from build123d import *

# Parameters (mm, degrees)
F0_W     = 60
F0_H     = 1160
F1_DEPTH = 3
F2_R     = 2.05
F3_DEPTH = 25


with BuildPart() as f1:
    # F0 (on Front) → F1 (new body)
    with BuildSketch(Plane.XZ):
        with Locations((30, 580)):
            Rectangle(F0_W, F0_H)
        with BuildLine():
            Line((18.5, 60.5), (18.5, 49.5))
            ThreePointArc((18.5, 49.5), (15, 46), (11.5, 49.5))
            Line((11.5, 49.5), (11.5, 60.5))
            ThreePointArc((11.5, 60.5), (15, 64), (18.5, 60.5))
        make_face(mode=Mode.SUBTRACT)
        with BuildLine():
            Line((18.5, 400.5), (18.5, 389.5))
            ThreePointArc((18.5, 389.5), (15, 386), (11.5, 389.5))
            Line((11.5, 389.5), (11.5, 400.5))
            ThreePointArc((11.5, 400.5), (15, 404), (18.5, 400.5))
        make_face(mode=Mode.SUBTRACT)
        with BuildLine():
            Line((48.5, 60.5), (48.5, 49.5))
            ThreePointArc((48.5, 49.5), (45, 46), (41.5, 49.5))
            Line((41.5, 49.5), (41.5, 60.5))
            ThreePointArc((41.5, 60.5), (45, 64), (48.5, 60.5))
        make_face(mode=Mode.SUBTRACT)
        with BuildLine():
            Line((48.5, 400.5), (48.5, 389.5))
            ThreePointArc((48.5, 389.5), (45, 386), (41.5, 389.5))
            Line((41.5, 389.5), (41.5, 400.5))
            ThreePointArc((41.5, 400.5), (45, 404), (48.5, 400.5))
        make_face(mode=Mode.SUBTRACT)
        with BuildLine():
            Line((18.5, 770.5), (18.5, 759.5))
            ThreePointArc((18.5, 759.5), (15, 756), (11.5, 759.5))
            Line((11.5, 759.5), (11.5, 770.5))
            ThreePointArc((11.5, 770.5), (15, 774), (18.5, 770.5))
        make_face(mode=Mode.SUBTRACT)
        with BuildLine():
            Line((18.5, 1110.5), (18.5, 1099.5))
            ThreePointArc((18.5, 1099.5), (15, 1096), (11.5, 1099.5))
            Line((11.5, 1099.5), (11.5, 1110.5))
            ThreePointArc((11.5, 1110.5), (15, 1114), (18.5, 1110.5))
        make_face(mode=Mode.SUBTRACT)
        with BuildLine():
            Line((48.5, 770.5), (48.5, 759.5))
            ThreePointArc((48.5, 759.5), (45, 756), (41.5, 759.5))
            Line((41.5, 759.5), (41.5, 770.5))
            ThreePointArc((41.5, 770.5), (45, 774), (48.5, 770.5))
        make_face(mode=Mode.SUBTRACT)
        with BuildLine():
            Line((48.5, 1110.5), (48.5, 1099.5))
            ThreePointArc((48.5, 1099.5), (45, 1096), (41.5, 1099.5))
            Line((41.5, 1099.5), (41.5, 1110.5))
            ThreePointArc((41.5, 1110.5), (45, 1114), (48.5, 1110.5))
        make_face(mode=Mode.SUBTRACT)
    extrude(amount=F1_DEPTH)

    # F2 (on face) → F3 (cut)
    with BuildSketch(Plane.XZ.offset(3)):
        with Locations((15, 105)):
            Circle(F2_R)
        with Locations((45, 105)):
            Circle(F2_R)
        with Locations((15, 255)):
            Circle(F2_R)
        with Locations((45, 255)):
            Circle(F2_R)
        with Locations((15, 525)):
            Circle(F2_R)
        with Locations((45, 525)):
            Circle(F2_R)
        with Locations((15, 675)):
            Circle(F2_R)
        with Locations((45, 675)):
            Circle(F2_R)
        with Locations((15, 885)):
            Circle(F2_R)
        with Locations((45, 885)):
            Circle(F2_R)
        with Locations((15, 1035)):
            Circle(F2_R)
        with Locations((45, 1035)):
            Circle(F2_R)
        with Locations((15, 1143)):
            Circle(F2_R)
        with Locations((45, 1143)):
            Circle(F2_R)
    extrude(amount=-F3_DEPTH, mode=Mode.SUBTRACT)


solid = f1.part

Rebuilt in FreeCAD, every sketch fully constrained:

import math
import FreeCAD as App
import Part
import Sketcher

doc = App.newDocument("Part")
params = doc.addObject("Spreadsheet::Sheet", "Params")
for row, (alias, value) in enumerate([
    ("sketch1_radius", "3.5 mm"),
    ("sketch1_width", "60 mm"),
    ("sketch1_height", "1160 mm"),
    ("sketch1_height2", "11 mm"),
    ("pad1_length", "3 mm"),
    ("sketch2_diameter", "4.1 mm"),
    ("pocket1_length", "25 mm"),
], start=1):
    params.set(f"A{row}", alias)
    params.set(f"B{row}", "=" + value)
    params.setAlias(f"B{row}", alias)

body = doc.addObject("PartDesign::Body", "Body")

# Sketch on XZ plane
sketch1 = body.newObject("Sketcher::SketchObject", "Sketch")
sketch1.AttachmentSupport = (doc.getObject("XZ_Plane"), [""])
sketch1.MapMode = "FlatFace"
sketch1.addGeometry([
    Part.LineSegment(App.Vector(0, 1160, 0), App.Vector(0, 0, 0)),  # 0
    Part.LineSegment(App.Vector(0, 0, 0), App.Vector(60, 0, 0)),  # 1
    Part.LineSegment(App.Vector(60, 0, 0), App.Vector(60, 1160, 0)),  # 2
    Part.LineSegment(App.Vector(60, 1160, 0), App.Vector(0, 1160, 0)),  # 3
    Part.ArcOfCircle(Part.Circle(App.Vector(15, 60.5, 0), App.Vector(0, 0, 1), 3.5), math.radians(0), math.radians(180)),  # 4
    Part.LineSegment(App.Vector(18.5, 60.5, 0), App.Vector(18.5, 49.5, 0)),  # 5
    Part.ArcOfCircle(Part.Circle(App.Vector(15, 49.5, 0), App.Vector(0, 0, 1), 3.5), math.radians(180), math.radians(360)),  # 6
    Part.LineSegment(App.Vector(11.5, 49.5, 0), App.Vector(11.5, 60.5, 0)),  # 7
    Part.ArcOfCircle(Part.Circle(App.Vector(15, 400.5, 0), App.Vector(0, 0, 1), 3.5), math.radians(0), math.radians(180)),  # 8
    Part.LineSegment(App.Vector(18.5, 400.5, 0), App.Vector(18.5, 389.5, 0)),  # 9
    Part.ArcOfCircle(Part.Circle(App.Vector(15, 389.5, 0), App.Vector(0, 0, 1), 3.5), math.radians(180), math.radians(360)),  # 10
    Part.LineSegment(App.Vector(11.5, 389.5, 0), App.Vector(11.5, 400.5, 0)),  # 11
    Part.ArcOfCircle(Part.Circle(App.Vector(45, 60.5, 0), App.Vector(0, 0, 1), 3.5), math.radians(0), math.radians(180)),  # 12
    Part.LineSegment(App.Vector(48.5, 60.5, 0), App.Vector(48.5, 49.5, 0)),  # 13
    Part.ArcOfCircle(Part.Circle(App.Vector(45, 49.5, 0), App.Vector(0, 0, 1), 3.5), math.radians(180), math.radians(360)),  # 14
    Part.LineSegment(App.Vector(41.5, 49.5, 0), App.Vector(41.5, 60.5, 0)),  # 15
    Part.ArcOfCircle(Part.Circle(App.Vector(45, 400.5, 0), App.Vector(0, 0, 1), 3.5), math.radians(0), math.radians(180)),  # 16
    Part.LineSegment(App.Vector(48.5, 400.5, 0), App.Vector(48.5, 389.5, 0)),  # 17
    Part.ArcOfCircle(Part.Circle(App.Vector(45, 389.5, 0), App.Vector(0, 0, 1), 3.5), math.radians(180), math.radians(360)),  # 18
    Part.LineSegment(App.Vector(41.5, 389.5, 0), App.Vector(41.5, 400.5, 0)),  # 19
    Part.ArcOfCircle(Part.Circle(App.Vector(15, 770.5, 0), App.Vector(0, 0, 1), 3.5), math.radians(0), math.radians(180)),  # 20
    Part.LineSegment(App.Vector(18.5, 770.5, 0), App.Vector(18.5, 759.5, 0)),  # 21
    Part.ArcOfCircle(Part.Circle(App.Vector(15, 759.5, 0), App.Vector(0, 0, 1), 3.5), math.radians(180), math.radians(360)),  # 22
    Part.LineSegment(App.Vector(11.5, 759.5, 0), App.Vector(11.5, 770.5, 0)),  # 23
    Part.ArcOfCircle(Part.Circle(App.Vector(15, 1110.5, 0), App.Vector(0, 0, 1), 3.5), math.radians(0), math.radians(180)),  # 24
    Part.LineSegment(App.Vector(18.5, 1110.5, 0), App.Vector(18.5, 1099.5, 0)),  # 25
    Part.ArcOfCircle(Part.Circle(App.Vector(15, 1099.5, 0), App.Vector(0, 0, 1), 3.5), math.radians(180), math.radians(360)),  # 26
    Part.LineSegment(App.Vector(11.5, 1099.5, 0), App.Vector(11.5, 1110.5, 0)),  # 27
    Part.ArcOfCircle(Part.Circle(App.Vector(45, 770.5, 0), App.Vector(0, 0, 1), 3.5), math.radians(0), math.radians(180)),  # 28
    Part.LineSegment(App.Vector(48.5, 770.5, 0), App.Vector(48.5, 759.5, 0)),  # 29
    Part.ArcOfCircle(Part.Circle(App.Vector(45, 759.5, 0), App.Vector(0, 0, 1), 3.5), math.radians(180), math.radians(360)),  # 30
    Part.LineSegment(App.Vector(41.5, 759.5, 0), App.Vector(41.5, 770.5, 0)),  # 31
    Part.ArcOfCircle(Part.Circle(App.Vector(45, 1110.5, 0), App.Vector(0, 0, 1), 3.5), math.radians(0), math.radians(180)),  # 32
    Part.LineSegment(App.Vector(48.5, 1110.5, 0), App.Vector(48.5, 1099.5, 0)),  # 33
    Part.ArcOfCircle(Part.Circle(App.Vector(45, 1099.5, 0), App.Vector(0, 0, 1), 3.5), math.radians(180), math.radians(360)),  # 34
    Part.LineSegment(App.Vector(41.5, 1099.5, 0), App.Vector(41.5, 1110.5, 0)),  # 35
], False)
sketch1.addConstraint([
    Sketcher.Constraint("Coincident", 0, 2, 1, 1),
    Sketcher.Constraint("Coincident", 1, 2, 2, 1),
    Sketcher.Constraint("Coincident", 2, 2, 3, 1),
    Sketcher.Constraint("Coincident", 3, 2, 0, 1),
    Sketcher.Constraint("Tangent", 4, 1, 5, 1),
    Sketcher.Constraint("Tangent", 5, 2, 6, 2),
    Sketcher.Constraint("Tangent", 6, 1, 7, 1),
    Sketcher.Constraint("Tangent", 7, 2, 4, 2),
    Sketcher.Constraint("Tangent", 8, 1, 9, 1),
    Sketcher.Constraint("Tangent", 9, 2, 10, 2),
    Sketcher.Constraint("Tangent", 10, 1, 11, 1),
    Sketcher.Constraint("Tangent", 11, 2, 8, 2),
    Sketcher.Constraint("Tangent", 12, 1, 13, 1),
    Sketcher.Constraint("Tangent", 13, 2, 14, 2),
    Sketcher.Constraint("Tangent", 14, 1, 15, 1),
    Sketcher.Constraint("Tangent", 15, 2, 12, 2),
    Sketcher.Constraint("Tangent", 16, 1, 17, 1),
    Sketcher.Constraint("Tangent", 17, 2, 18, 2),
    Sketcher.Constraint("Tangent", 18, 1, 19, 1),
    Sketcher.Constraint("Tangent", 19, 2, 16, 2),
    Sketcher.Constraint("Tangent", 20, 1, 21, 1),
    Sketcher.Constraint("Tangent", 21, 2, 22, 2),
    Sketcher.Constraint("Tangent", 22, 1, 23, 1),
    Sketcher.Constraint("Tangent", 23, 2, 20, 2),
    Sketcher.Constraint("Tangent", 24, 1, 25, 1),
    Sketcher.Constraint("Tangent", 25, 2, 26, 2),
    Sketcher.Constraint("Tangent", 26, 1, 27, 1),
    Sketcher.Constraint("Tangent", 27, 2, 24, 2),
    Sketcher.Constraint("Tangent", 28, 1, 29, 1),
    Sketcher.Constraint("Tangent", 29, 2, 30, 2),
    Sketcher.Constraint("Tangent", 30, 1, 31, 1),
    Sketcher.Constraint("Tangent", 31, 2, 28, 2),
    Sketcher.Constraint("Tangent", 32, 1, 33, 1),
    Sketcher.Constraint("Tangent", 33, 2, 34, 2),
    Sketcher.Constraint("Tangent", 34, 1, 35, 1),
    Sketcher.Constraint("Tangent", 35, 2, 32, 2),
    Sketcher.Constraint("Vertical", 0),
    Sketcher.Constraint("Horizontal", 1),
    Sketcher.Constraint("Vertical", 2),
    Sketcher.Constraint("Horizontal", 3),
    Sketcher.Constraint("Vertical", 5),
    Sketcher.Constraint("Vertical", 7),
    Sketcher.Constraint("Vertical", 9),
    Sketcher.Constraint("Vertical", 11),
    Sketcher.Constraint("Vertical", 13),
    Sketcher.Constraint("Vertical", 15),
    Sketcher.Constraint("Vertical", 17),
    Sketcher.Constraint("Vertical", 19),
    Sketcher.Constraint("Vertical", 21),
    Sketcher.Constraint("Vertical", 23),
    Sketcher.Constraint("Vertical", 25),
    Sketcher.Constraint("Vertical", 27),
    Sketcher.Constraint("Vertical", 29),
    Sketcher.Constraint("Vertical", 31),
    Sketcher.Constraint("Vertical", 33),
    Sketcher.Constraint("Vertical", 35),
    Sketcher.Constraint("Coincident", 0, 2, -1, 1),
    Sketcher.Constraint("Equal", 6, 8),
    Sketcher.Constraint("Equal", 10, 12),
    Sketcher.Constraint("Equal", 14, 16),
    Sketcher.Constraint("Equal", 18, 20),
    Sketcher.Constraint("Equal", 22, 24),
    Sketcher.Constraint("Equal", 26, 28),
    Sketcher.Constraint("Equal", 30, 32),
    Sketcher.Constraint("Horizontal", 4, 3, 12, 3),
    Sketcher.Constraint("Horizontal", 6, 3, 14, 3),
    Sketcher.Constraint("Horizontal", 8, 3, 16, 3),
    Sketcher.Constraint("Horizontal", 10, 3, 18, 3),
    Sketcher.Constraint("Horizontal", 20, 3, 28, 3),
    Sketcher.Constraint("Horizontal", 22, 3, 30, 3),
    Sketcher.Constraint("Horizontal", 24, 3, 32, 3),
    Sketcher.Constraint("Horizontal", 26, 3, 34, 3),
    Sketcher.Constraint("Vertical", 6, 3, 8, 3),
    Sketcher.Constraint("Vertical", 14, 3, 16, 3),
    Sketcher.Constraint("Vertical", 10, 3, 20, 3),
    Sketcher.Constraint("Vertical", 22, 3, 24, 3),
    Sketcher.Constraint("Vertical", 18, 3, 28, 3),
    Sketcher.Constraint("Vertical", 30, 3, 32, 3),
    Sketcher.Constraint("Equal", 7, 9),
    Sketcher.Constraint("Equal", 19, 21),
    Sketcher.Constraint("Equal", 23, 25),
    Sketcher.Constraint("Radius", 4, 3.5),
    Sketcher.Constraint("DistanceX", 1, 1, 1, 2, 60.0),
    Sketcher.Constraint("DistanceY", 0, 2, 0, 1, 1160.0),
    Sketcher.Constraint("DistanceY", 5, 2, 5, 1, 11.0),
    Sketcher.Constraint("DistanceX", -1, 1, 4, 3, 15.0),
    Sketcher.Constraint("DistanceX", -1, 1, 12, 3, 45.0),
    Sketcher.Constraint("DistanceY", 4, 3, 8, 3, 340.0),
    Sketcher.Constraint("DistanceY", 8, 3, 20, 3, 370.0),
    Sketcher.Constraint("DistanceY", 20, 3, 24, 3, 340.0),
    Sketcher.Constraint("DistanceY", -1, 1, 4, 3, 60.5),
])
sketch1.setExpression("Constraints[81]", "Params.sketch1_radius")
sketch1.setExpression("Constraints[82]", "Params.sketch1_width")
sketch1.setExpression("Constraints[83]", "Params.sketch1_height")
sketch1.setExpression("Constraints[84]", "Params.sketch1_height2")
pad1 = body.newObject("PartDesign::Pad", "Pad")
pad1.Profile = sketch1
pad1.setExpression("Length", "Params.pad1_length")

# Sketch on XZ plane
sketch2 = body.newObject("Sketcher::SketchObject", "Sketch001")
sketch2.AttachmentSupport = (doc.getObject("XZ_Plane"), [""])
sketch2.MapMode = "FlatFace"
sketch2.AttachmentOffset = App.Placement(App.Vector(0, 0, 3), App.Rotation())
sketch2.addGeometry([
    Part.Circle(App.Vector(15, 105, 0), App.Vector(0, 0, 1), 2),  # 0
    Part.Circle(App.Vector(45, 105, 0), App.Vector(0, 0, 1), 2),  # 1
    Part.Circle(App.Vector(15, 255, 0), App.Vector(0, 0, 1), 2),  # 2
    Part.Circle(App.Vector(45, 255, 0), App.Vector(0, 0, 1), 2),  # 3
    Part.Circle(App.Vector(15, 525, 0), App.Vector(0, 0, 1), 2),  # 4
    Part.Circle(App.Vector(45, 525, 0), App.Vector(0, 0, 1), 2),  # 5
    Part.Circle(App.Vector(15, 675, 0), App.Vector(0, 0, 1), 2),  # 6
    Part.Circle(App.Vector(45, 675, 0), App.Vector(0, 0, 1), 2),  # 7
    Part.Circle(App.Vector(15, 885, 0), App.Vector(0, 0, 1), 2),  # 8
    Part.Circle(App.Vector(45, 885, 0), App.Vector(0, 0, 1), 2),  # 9
    Part.Circle(App.Vector(15, 1035, 0), App.Vector(0, 0, 1), 2),  # 10
    Part.Circle(App.Vector(45, 1035, 0), App.Vector(0, 0, 1), 2),  # 11
    Part.Circle(App.Vector(15, 1143, 0), App.Vector(0, 0, 1), 2),  # 12
    Part.Circle(App.Vector(45, 1143, 0), App.Vector(0, 0, 1), 2),  # 13
], False)
sketch2.addConstraint([
    Sketcher.Constraint("Equal", 0, 1),
    Sketcher.Constraint("Equal", 1, 2),
    Sketcher.Constraint("Equal", 2, 3),
    Sketcher.Constraint("Equal", 3, 4),
    Sketcher.Constraint("Equal", 4, 5),
    Sketcher.Constraint("Equal", 5, 6),
    Sketcher.Constraint("Equal", 6, 7),
    Sketcher.Constraint("Equal", 7, 8),
    Sketcher.Constraint("Equal", 8, 9),
    Sketcher.Constraint("Equal", 9, 10),
    Sketcher.Constraint("Equal", 10, 11),
    Sketcher.Constraint("Equal", 11, 12),
    Sketcher.Constraint("Equal", 12, 13),
    Sketcher.Constraint("Horizontal", 0, 3, 1, 3),
    Sketcher.Constraint("Horizontal", 2, 3, 3, 3),
    Sketcher.Constraint("Horizontal", 4, 3, 5, 3),
    Sketcher.Constraint("Horizontal", 6, 3, 7, 3),
    Sketcher.Constraint("Horizontal", 8, 3, 9, 3),
    Sketcher.Constraint("Horizontal", 10, 3, 11, 3),
    Sketcher.Constraint("Horizontal", 12, 3, 13, 3),
    Sketcher.Constraint("Vertical", 0, 3, 2, 3),
    Sketcher.Constraint("Vertical", 1, 3, 3, 3),
    Sketcher.Constraint("Vertical", 2, 3, 4, 3),
    Sketcher.Constraint("Vertical", 3, 3, 5, 3),
    Sketcher.Constraint("Vertical", 4, 3, 6, 3),
    Sketcher.Constraint("Vertical", 5, 3, 7, 3),
    Sketcher.Constraint("Vertical", 6, 3, 8, 3),
    Sketcher.Constraint("Vertical", 7, 3, 9, 3),
    Sketcher.Constraint("Vertical", 8, 3, 10, 3),
    Sketcher.Constraint("Vertical", 9, 3, 11, 3),
    Sketcher.Constraint("Vertical", 10, 3, 12, 3),
    Sketcher.Constraint("Vertical", 11, 3, 13, 3),
    Sketcher.Constraint("Diameter", 0, 4.1),
    Sketcher.Constraint("DistanceX", -1, 1, 0, 3, 15.0),
    Sketcher.Constraint("DistanceY", -1, 1, 0, 3, 105.0),
    Sketcher.Constraint("DistanceX", -1, 1, 1, 3, 45.0),
    Sketcher.Constraint("DistanceY", -1, 1, 2, 3, 255.0),
    Sketcher.Constraint("DistanceY", -1, 1, 4, 3, 525.0),
    Sketcher.Constraint("DistanceY", -1, 1, 6, 3, 675.0),
    Sketcher.Constraint("DistanceY", -1, 1, 8, 3, 885.0),
    Sketcher.Constraint("DistanceY", -1, 1, 10, 3, 1035.0),
    Sketcher.Constraint("DistanceY", -1, 1, 12, 3, 1143.0),
])
sketch2.setExpression("Constraints[32]", "Params.sketch2_diameter")
pocket1 = body.newObject("PartDesign::Pocket", "Pocket")
pocket1.Profile = sketch2
pocket1.setExpression("Length", "Params.pocket1_length")

doc.recompute()
